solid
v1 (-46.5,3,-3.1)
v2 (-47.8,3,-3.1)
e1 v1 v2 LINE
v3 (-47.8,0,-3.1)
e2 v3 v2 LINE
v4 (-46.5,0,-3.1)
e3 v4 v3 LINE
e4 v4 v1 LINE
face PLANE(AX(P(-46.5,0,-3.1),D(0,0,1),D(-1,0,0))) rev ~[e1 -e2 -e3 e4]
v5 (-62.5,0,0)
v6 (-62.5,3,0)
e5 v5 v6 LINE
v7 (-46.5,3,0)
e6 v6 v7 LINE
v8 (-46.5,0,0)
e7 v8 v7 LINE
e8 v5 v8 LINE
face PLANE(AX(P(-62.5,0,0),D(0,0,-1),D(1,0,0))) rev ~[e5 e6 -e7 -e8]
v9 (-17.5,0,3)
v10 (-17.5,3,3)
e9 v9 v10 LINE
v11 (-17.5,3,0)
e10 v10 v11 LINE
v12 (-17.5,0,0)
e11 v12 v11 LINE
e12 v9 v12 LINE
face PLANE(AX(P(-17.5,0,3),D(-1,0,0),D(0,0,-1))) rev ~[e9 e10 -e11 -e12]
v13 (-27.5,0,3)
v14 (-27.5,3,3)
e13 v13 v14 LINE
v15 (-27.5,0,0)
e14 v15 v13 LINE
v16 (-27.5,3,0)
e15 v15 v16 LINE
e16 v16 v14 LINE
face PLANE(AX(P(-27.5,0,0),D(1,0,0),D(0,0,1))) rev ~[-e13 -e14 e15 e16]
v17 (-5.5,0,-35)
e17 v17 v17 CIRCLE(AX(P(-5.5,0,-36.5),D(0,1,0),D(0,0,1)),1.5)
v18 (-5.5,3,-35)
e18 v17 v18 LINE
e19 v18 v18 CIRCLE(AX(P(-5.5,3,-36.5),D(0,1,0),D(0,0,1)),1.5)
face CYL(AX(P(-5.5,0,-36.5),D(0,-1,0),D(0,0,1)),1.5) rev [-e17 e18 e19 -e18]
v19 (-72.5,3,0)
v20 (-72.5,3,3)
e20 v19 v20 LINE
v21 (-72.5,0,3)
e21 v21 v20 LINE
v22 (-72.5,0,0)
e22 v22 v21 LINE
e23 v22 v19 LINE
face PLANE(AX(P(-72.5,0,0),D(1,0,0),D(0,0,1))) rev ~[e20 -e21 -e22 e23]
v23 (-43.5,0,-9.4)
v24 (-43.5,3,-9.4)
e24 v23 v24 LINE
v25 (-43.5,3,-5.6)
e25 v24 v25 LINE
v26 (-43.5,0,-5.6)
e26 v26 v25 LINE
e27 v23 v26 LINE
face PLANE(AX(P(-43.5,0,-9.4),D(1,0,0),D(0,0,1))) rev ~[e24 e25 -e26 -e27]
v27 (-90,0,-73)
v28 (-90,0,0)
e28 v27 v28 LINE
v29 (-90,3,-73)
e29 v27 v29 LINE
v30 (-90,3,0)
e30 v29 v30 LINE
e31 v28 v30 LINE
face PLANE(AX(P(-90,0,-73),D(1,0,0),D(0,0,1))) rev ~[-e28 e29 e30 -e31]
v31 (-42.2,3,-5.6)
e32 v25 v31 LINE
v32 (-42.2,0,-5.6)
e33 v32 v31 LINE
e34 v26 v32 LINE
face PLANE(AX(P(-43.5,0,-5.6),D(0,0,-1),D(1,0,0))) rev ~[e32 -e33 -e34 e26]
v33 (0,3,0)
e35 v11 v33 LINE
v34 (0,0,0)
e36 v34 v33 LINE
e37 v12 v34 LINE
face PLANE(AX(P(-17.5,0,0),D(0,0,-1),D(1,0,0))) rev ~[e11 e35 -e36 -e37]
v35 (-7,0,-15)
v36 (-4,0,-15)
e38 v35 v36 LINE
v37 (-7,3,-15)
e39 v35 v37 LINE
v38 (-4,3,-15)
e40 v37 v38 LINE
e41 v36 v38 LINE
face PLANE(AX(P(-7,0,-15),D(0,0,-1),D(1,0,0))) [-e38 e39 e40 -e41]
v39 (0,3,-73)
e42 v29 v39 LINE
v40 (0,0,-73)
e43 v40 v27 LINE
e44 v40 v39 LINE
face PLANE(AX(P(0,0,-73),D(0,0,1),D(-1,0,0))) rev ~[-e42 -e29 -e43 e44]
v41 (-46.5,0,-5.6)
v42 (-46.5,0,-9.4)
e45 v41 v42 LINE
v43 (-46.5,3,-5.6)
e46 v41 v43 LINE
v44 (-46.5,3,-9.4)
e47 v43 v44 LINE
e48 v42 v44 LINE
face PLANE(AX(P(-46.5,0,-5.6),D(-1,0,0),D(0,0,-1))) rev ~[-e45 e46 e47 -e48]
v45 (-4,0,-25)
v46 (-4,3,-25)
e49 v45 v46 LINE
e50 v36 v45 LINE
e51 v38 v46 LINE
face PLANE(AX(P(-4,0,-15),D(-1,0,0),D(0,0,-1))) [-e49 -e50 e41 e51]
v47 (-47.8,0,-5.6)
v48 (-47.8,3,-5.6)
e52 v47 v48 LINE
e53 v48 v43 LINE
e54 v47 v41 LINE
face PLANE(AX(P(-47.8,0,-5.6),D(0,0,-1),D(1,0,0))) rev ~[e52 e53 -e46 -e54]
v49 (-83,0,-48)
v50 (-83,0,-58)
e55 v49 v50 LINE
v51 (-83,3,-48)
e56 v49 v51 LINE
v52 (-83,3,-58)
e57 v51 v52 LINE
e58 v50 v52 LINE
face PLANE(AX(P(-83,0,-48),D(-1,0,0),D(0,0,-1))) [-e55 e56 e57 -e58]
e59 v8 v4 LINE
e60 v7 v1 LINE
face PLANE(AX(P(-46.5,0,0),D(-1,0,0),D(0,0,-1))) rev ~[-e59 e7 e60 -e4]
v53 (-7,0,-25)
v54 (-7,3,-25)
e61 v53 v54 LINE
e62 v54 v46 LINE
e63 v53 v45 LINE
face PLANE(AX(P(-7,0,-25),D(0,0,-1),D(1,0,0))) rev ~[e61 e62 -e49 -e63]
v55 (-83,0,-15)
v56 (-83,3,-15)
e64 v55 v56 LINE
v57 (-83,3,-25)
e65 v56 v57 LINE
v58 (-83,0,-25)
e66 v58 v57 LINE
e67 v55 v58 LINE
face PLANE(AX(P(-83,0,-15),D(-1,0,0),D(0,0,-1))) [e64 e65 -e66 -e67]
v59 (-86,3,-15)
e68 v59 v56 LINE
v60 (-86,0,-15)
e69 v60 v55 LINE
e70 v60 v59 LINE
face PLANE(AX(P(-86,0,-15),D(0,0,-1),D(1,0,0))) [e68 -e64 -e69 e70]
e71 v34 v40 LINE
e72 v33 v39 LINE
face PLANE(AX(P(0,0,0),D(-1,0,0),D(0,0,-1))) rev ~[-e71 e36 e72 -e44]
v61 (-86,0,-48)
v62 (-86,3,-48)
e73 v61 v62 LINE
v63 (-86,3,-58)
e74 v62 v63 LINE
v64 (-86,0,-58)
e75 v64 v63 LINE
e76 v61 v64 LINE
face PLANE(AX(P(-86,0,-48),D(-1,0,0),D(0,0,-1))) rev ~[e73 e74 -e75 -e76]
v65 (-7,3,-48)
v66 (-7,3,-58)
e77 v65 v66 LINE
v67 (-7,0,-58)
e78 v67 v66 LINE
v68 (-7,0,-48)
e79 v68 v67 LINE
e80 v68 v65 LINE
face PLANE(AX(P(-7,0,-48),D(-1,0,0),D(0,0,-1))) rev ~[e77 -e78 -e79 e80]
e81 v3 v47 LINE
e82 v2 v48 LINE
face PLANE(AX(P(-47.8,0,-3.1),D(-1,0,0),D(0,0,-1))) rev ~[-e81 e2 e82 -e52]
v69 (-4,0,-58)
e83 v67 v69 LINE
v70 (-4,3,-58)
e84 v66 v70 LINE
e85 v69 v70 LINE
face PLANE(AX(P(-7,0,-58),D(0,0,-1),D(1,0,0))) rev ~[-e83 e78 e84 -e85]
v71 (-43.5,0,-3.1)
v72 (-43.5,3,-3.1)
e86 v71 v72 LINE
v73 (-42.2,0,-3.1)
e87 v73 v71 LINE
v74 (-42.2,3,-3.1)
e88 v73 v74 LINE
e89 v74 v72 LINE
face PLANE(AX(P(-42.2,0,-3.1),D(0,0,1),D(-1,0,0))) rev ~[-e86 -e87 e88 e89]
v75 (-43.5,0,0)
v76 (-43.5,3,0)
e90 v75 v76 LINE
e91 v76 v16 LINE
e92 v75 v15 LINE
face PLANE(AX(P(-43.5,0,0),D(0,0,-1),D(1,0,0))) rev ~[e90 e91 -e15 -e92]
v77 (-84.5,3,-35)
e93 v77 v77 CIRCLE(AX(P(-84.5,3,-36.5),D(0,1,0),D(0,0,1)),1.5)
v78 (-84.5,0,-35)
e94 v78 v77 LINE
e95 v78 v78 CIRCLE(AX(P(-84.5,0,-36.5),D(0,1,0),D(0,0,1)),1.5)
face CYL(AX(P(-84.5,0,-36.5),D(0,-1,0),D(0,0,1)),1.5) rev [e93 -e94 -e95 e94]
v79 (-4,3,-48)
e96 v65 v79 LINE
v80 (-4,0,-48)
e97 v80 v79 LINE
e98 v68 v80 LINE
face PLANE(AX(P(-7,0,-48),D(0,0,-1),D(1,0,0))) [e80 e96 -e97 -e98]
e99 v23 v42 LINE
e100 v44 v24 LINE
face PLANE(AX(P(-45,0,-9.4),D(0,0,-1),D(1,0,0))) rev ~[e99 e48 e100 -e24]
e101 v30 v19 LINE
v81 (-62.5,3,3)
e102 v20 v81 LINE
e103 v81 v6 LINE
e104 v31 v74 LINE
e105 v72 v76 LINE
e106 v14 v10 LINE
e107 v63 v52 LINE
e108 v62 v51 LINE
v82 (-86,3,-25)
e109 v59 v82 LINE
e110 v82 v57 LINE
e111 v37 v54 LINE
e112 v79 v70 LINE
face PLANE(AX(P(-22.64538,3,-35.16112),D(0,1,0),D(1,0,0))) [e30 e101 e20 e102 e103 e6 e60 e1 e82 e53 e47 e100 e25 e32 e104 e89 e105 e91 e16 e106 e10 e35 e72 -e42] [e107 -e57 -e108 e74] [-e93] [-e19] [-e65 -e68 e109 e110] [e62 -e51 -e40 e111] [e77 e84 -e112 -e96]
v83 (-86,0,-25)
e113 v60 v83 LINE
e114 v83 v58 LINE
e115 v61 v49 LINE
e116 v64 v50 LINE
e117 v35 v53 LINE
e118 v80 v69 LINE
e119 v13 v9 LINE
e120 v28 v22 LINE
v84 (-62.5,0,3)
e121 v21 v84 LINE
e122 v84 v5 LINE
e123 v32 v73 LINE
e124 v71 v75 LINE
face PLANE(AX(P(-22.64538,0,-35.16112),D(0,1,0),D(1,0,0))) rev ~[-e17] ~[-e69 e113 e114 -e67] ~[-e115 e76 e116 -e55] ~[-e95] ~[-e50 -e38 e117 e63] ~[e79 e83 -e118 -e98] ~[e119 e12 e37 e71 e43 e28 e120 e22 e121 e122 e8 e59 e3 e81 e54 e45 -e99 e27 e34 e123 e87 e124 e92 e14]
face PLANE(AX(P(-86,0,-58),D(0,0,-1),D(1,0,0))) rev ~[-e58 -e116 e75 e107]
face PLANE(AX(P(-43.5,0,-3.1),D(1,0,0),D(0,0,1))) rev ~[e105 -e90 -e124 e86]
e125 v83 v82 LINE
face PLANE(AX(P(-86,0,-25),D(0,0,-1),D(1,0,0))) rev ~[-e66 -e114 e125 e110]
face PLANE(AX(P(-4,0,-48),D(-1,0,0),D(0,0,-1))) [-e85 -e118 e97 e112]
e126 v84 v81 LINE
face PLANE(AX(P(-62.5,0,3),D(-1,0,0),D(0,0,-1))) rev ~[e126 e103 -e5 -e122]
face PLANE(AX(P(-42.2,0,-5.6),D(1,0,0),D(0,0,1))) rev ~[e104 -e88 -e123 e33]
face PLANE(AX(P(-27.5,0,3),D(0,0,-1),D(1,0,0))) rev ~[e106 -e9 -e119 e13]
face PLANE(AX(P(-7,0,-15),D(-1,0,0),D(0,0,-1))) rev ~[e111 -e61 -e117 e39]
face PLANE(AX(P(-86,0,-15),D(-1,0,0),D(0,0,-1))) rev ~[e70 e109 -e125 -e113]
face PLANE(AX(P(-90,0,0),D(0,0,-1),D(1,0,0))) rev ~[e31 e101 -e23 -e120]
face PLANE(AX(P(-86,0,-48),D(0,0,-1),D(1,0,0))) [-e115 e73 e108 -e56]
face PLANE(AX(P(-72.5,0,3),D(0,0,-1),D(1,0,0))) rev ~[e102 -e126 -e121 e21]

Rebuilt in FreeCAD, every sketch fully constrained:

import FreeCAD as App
import Part
import Sketcher
from FreeCAD import Vector


def add_polygon(sketch, points):
    """Adds a closed chain of lines whose ends are joined by coincident constraints."""
    first, n = sketch.GeometryCount, len(points)
    for a, b in zip(points, points[1:] + points[:1]):
        sketch.addGeometry(Part.LineSegment(App.Vector(*a, 0), App.Vector(*b, 0)), False)
    for i in range(n):
        sketch.addConstraint(Sketcher.Constraint("Coincident", first + i, 2, first + (i + 1) % n, 1))

doc = App.newDocument("Part")
body = doc.addObject("PartDesign::Body", "Body")

# Sketch on XZ plane
sketch1 = body.newObject("Sketcher::SketchObject", "Sketch")
sketch1.AttachmentSupport = (doc.getObject("XZ_Plane"), [""])
sketch1.MapMode = "FlatFace"
add_polygon(sketch1, [(-90, 0), (-72.5, 0), (-72.5, 3), (-62.5, 3), (-62.5, 0), (-46.5, 0), (-46.5, -3.1), (-47.8, -3.1), (-47.8, -5.6), (-46.5, -5.6), (-46.5, -9.4), (-43.5, -9.4), (-43.5, -5.6), (-42.2, -5.6), (-42.2, -3.1), (-43.5, -3.1), (-43.5, 0), (-27.5, 0), (-27.5, 3), (-17.5, 3), (-17.5, 0), (0, 0), (0, -73), (-90, -73)])  # lines 0-23
add_polygon(sketch1, [(-83, -15), (-86, -15), (-86, -25), (-83, -25)])  # lines 24-27
sketch1.addGeometry(Part.Circle(Vector(-84.5, -36.5, 0), Vector(0, 0, 1), 1.5), False)  # 28
add_polygon(sketch1, [(-83, -48), (-86, -48), (-86, -58), (-83, -58)])  # lines 29-32
add_polygon(sketch1, [(-7, -48), (-7, -58), (-4, -58), (-4, -48)])  # lines 33-36
add_polygon(sketch1, [(-4, -15), (-7, -15), (-7, -25), (-4, -25)])  # lines 37-40
sketch1.addGeometry(Part.Circle(Vector(-5.5, -36.5, 0), Vector(0, 0, 1), 1.5), False)  # 41
sketch1.addConstraint(Sketcher.Constraint("Horizontal", 0))
sketch1.addConstraint(Sketcher.Constraint("Vertical", 1))
sketch1.addConstraint(Sketcher.Constraint("Horizontal", 2))
sketch1.addConstraint(Sketcher.Constraint("Vertical", 3))
sketch1.addConstraint(Sketcher.Constraint("Horizontal", 4))
sketch1.addConstraint(Sketcher.Constraint("Vertical", 5))
sketch1.addConstraint(Sketcher.Constraint("Horizontal", 6))
sketch1.addConstraint(Sketcher.Constraint("Vertical", 7))
sketch1.addConstraint(Sketcher.Constraint("Horizontal", 8))
sketch1.addConstraint(Sketcher.Constraint("Vertical", 9))
sketch1.addConstraint(Sketcher.Constraint("Horizontal", 10))
sketch1.addConstraint(Sketcher.Constraint("Vertical", 11))
sketch1.addConstraint(Sketcher.Constraint("Horizontal", 12))
sketch1.addConstraint(Sketcher.Constraint("Vertical", 13))
sketch1.addConstraint(Sketcher.Constraint("Horizontal", 14))
sketch1.addConstraint(Sketcher.Constraint("Vertical", 15))
sketch1.addConstraint(Sketcher.Constraint("Horizontal", 16))
sketch1.addConstraint(Sketcher.Constraint("Vertical", 17))
sketch1.addConstraint(Sketcher.Constraint("Horizontal", 18))
sketch1.addConstraint(Sketcher.Constraint("Vertical", 19))
sketch1.addConstraint(Sketcher.Constraint("Horizontal", 20))
sketch1.addConstraint(Sketcher.Constraint("Vertical", 21))
sketch1.addConstraint(Sketcher.Constraint("Horizontal", 22))
sketch1.addConstraint(Sketcher.Constraint("Vertical", 23))
sketch1.addConstraint(Sketcher.Constraint("Horizontal", 24))
sketch1.addConstraint(Sketcher.Constraint("Vertical", 25))
sketch1.addConstraint(Sketcher.Constraint("Horizontal", 26))
sketch1.addConstraint(Sketcher.Constraint("Vertical", 27))
sketch1.addConstraint(Sketcher.Constraint("Horizontal", 29))
sketch1.addConstraint(Sketcher.Constraint("Vertical", 30))
sketch1.addConstraint(Sketcher.Constraint("Horizontal", 31))
sketch1.addConstraint(Sketcher.Constraint("Vertical", 32))
sketch1.addConstraint(Sketcher.Constraint("Vertical", 33))
sketch1.addConstraint(Sketcher.Constraint("Horizontal", 34))
sketch1.addConstraint(Sketcher.Constraint("Vertical", 35))
sketch1.addConstraint(Sketcher.Constraint("Horizontal", 36))
sketch1.addConstraint(Sketcher.Constraint("Horizontal", 37))
sketch1.addConstraint(Sketcher.Constraint("Vertical", 38))
sketch1.addConstraint(Sketcher.Constraint("Horizontal", 39))
sketch1.addConstraint(Sketcher.Constraint("Vertical", 40))
sketch1.addConstraint(Sketcher.Constraint("Coincident", 20, 2, -1, 1))
sketch1.addConstraint(Sketcher.Constraint("Equal", 28, 41))
sketch1.addConstraint(Sketcher.Constraint("PointOnObject", 0, 2, -1))
sketch1.addConstraint(Sketcher.Constraint("PointOnObject", 3, 2, -1))
sketch1.addConstraint(Sketcher.Constraint("PointOnObject", 15, 2, -1))
sketch1.addConstraint(Sketcher.Constraint("Horizontal", 28, 3, 41, 3))
sketch1.addConstraint(Sketcher.Constraint("Horizontal", 8, 2, 11, 2))
sketch1.addConstraint(Sketcher.Constraint("Horizontal", 6, 2, 13, 2))
sketch1.addConstraint(Sketcher.Constraint("Horizontal", 2, 2, 17, 2))
sketch1.addConstraint(Sketcher.Constraint("Horizontal", 31, 2, 33, 2))
sketch1.addConstraint(Sketcher.Constraint("Horizontal", 32, 2, 35, 2))
sketch1.addConstraint(Sketcher.Constraint("Horizontal", 27, 2, 37, 2))
sketch1.addConstraint(Sketcher.Constraint("Horizontal", 26, 2, 38, 2))
sketch1.addConstraint(Sketcher.Constraint("Vertical", 5, 2, 8, 2))
sketch1.addConstraint(Sketcher.Constraint("Vertical", 11, 2, 14, 2))
sketch1.addConstraint(Sketcher.Constraint("Vertical", 25, 2, 29, 2))
sketch1.addConstraint(Sketcher.Constraint("Vertical", 27, 2, 31, 2))
sketch1.addConstraint(Sketcher.Constraint("Vertical", 36, 2, 37, 2))
sketch1.addConstraint(Sketcher.Constraint("Vertical", 35, 2, 39, 2))
sketch1.addConstraint(Sketcher.Constraint("Equal", 8, 12))
sketch1.addConstraint(Sketcher.Constraint("Equal", 4, 16))
sketch1.addConstraint(Sketcher.Constraint("Equal", 2, 18))
sketch1.addConstraint(Sketcher.Constraint("Equal", 0, 20))
sketch1.addConstraint(Sketcher.Constraint("Equal", 10, 24))
sketch1.addConstraint(Sketcher.Constraint("Equal", 31, 34))
sketch1.addConstraint(Sketcher.Constraint("Equal", 39, 1))
sketch1.addConstraint(Sketcher.Constraint("Equal", 18, 25))
sketch1.addConstraint(Sketcher.Constraint("Equal", 27, 30))
sketch1.addConstraint(Sketcher.Constraint("Diameter", 28, 3.0))
sketch1.addConstraint(Sketcher.Constraint("DistanceX", 2, 1, 2, 2, 10.0))
sketch1.addConstraint(Sketcher.Constraint("DistanceX", 4, 1, 4, 2, 16.0))
sketch1.addConstraint(Sketcher.Constraint("DistanceX", 10, 1, 10, 2, 3.0))
sketch1.addConstraint(Sketcher.Constraint("DistanceX", 22, 2, 22, 1, 90.0))
sketch1.addConstraint(Sketcher.Constraint("DistanceY", 21, 2, 21, 1, 73.0))
sketch1.addConstraint(Sketcher.Constraint("DistanceX", 6, 2, 6, 1, 1.3))
sketch1.addConstraint(Sketcher.Constraint("DistanceY", 5, 2, 5, 1, 3.1))
sketch1.addConstraint(Sketcher.Constraint("DistanceY", 7, 2, 7, 1, 2.5))
sketch1.addConstraint(Sketcher.Constraint("DistanceY", 9, 2, 9, 1, 3.8))
sketch1.addConstraint(Sketcher.Constraint("DistanceX", 24, 2, -1, 1, 86.0))
sketch1.addConstraint(Sketcher.Constraint("DistanceY", 24, 2, -1, 1, 15.0))
sketch1.addConstraint(Sketcher.Constraint("DistanceY", 29, 2, -1, 1, 48.0))
sketch1.addConstraint(Sketcher.Constraint("DistanceX", 33, 2, -1, 1, 7.0))
sketch1.addConstraint(Sketcher.Constraint("DistanceX", 28, 3, 41, 3, 79.0))
sketch1.addConstraint(Sketcher.Constraint("DistanceX", 28, 3, 0, 2, 12.0))
sketch1.addConstraint(Sketcher.Constraint("DistanceY", 28, 3, -1, 1, 36.5))
pad1 = body.newObject("PartDesign::Pad", "Pad")
pad1.Profile = sketch1
pad1.Length = 3
pad1.Reversed = True

doc.recompute()
